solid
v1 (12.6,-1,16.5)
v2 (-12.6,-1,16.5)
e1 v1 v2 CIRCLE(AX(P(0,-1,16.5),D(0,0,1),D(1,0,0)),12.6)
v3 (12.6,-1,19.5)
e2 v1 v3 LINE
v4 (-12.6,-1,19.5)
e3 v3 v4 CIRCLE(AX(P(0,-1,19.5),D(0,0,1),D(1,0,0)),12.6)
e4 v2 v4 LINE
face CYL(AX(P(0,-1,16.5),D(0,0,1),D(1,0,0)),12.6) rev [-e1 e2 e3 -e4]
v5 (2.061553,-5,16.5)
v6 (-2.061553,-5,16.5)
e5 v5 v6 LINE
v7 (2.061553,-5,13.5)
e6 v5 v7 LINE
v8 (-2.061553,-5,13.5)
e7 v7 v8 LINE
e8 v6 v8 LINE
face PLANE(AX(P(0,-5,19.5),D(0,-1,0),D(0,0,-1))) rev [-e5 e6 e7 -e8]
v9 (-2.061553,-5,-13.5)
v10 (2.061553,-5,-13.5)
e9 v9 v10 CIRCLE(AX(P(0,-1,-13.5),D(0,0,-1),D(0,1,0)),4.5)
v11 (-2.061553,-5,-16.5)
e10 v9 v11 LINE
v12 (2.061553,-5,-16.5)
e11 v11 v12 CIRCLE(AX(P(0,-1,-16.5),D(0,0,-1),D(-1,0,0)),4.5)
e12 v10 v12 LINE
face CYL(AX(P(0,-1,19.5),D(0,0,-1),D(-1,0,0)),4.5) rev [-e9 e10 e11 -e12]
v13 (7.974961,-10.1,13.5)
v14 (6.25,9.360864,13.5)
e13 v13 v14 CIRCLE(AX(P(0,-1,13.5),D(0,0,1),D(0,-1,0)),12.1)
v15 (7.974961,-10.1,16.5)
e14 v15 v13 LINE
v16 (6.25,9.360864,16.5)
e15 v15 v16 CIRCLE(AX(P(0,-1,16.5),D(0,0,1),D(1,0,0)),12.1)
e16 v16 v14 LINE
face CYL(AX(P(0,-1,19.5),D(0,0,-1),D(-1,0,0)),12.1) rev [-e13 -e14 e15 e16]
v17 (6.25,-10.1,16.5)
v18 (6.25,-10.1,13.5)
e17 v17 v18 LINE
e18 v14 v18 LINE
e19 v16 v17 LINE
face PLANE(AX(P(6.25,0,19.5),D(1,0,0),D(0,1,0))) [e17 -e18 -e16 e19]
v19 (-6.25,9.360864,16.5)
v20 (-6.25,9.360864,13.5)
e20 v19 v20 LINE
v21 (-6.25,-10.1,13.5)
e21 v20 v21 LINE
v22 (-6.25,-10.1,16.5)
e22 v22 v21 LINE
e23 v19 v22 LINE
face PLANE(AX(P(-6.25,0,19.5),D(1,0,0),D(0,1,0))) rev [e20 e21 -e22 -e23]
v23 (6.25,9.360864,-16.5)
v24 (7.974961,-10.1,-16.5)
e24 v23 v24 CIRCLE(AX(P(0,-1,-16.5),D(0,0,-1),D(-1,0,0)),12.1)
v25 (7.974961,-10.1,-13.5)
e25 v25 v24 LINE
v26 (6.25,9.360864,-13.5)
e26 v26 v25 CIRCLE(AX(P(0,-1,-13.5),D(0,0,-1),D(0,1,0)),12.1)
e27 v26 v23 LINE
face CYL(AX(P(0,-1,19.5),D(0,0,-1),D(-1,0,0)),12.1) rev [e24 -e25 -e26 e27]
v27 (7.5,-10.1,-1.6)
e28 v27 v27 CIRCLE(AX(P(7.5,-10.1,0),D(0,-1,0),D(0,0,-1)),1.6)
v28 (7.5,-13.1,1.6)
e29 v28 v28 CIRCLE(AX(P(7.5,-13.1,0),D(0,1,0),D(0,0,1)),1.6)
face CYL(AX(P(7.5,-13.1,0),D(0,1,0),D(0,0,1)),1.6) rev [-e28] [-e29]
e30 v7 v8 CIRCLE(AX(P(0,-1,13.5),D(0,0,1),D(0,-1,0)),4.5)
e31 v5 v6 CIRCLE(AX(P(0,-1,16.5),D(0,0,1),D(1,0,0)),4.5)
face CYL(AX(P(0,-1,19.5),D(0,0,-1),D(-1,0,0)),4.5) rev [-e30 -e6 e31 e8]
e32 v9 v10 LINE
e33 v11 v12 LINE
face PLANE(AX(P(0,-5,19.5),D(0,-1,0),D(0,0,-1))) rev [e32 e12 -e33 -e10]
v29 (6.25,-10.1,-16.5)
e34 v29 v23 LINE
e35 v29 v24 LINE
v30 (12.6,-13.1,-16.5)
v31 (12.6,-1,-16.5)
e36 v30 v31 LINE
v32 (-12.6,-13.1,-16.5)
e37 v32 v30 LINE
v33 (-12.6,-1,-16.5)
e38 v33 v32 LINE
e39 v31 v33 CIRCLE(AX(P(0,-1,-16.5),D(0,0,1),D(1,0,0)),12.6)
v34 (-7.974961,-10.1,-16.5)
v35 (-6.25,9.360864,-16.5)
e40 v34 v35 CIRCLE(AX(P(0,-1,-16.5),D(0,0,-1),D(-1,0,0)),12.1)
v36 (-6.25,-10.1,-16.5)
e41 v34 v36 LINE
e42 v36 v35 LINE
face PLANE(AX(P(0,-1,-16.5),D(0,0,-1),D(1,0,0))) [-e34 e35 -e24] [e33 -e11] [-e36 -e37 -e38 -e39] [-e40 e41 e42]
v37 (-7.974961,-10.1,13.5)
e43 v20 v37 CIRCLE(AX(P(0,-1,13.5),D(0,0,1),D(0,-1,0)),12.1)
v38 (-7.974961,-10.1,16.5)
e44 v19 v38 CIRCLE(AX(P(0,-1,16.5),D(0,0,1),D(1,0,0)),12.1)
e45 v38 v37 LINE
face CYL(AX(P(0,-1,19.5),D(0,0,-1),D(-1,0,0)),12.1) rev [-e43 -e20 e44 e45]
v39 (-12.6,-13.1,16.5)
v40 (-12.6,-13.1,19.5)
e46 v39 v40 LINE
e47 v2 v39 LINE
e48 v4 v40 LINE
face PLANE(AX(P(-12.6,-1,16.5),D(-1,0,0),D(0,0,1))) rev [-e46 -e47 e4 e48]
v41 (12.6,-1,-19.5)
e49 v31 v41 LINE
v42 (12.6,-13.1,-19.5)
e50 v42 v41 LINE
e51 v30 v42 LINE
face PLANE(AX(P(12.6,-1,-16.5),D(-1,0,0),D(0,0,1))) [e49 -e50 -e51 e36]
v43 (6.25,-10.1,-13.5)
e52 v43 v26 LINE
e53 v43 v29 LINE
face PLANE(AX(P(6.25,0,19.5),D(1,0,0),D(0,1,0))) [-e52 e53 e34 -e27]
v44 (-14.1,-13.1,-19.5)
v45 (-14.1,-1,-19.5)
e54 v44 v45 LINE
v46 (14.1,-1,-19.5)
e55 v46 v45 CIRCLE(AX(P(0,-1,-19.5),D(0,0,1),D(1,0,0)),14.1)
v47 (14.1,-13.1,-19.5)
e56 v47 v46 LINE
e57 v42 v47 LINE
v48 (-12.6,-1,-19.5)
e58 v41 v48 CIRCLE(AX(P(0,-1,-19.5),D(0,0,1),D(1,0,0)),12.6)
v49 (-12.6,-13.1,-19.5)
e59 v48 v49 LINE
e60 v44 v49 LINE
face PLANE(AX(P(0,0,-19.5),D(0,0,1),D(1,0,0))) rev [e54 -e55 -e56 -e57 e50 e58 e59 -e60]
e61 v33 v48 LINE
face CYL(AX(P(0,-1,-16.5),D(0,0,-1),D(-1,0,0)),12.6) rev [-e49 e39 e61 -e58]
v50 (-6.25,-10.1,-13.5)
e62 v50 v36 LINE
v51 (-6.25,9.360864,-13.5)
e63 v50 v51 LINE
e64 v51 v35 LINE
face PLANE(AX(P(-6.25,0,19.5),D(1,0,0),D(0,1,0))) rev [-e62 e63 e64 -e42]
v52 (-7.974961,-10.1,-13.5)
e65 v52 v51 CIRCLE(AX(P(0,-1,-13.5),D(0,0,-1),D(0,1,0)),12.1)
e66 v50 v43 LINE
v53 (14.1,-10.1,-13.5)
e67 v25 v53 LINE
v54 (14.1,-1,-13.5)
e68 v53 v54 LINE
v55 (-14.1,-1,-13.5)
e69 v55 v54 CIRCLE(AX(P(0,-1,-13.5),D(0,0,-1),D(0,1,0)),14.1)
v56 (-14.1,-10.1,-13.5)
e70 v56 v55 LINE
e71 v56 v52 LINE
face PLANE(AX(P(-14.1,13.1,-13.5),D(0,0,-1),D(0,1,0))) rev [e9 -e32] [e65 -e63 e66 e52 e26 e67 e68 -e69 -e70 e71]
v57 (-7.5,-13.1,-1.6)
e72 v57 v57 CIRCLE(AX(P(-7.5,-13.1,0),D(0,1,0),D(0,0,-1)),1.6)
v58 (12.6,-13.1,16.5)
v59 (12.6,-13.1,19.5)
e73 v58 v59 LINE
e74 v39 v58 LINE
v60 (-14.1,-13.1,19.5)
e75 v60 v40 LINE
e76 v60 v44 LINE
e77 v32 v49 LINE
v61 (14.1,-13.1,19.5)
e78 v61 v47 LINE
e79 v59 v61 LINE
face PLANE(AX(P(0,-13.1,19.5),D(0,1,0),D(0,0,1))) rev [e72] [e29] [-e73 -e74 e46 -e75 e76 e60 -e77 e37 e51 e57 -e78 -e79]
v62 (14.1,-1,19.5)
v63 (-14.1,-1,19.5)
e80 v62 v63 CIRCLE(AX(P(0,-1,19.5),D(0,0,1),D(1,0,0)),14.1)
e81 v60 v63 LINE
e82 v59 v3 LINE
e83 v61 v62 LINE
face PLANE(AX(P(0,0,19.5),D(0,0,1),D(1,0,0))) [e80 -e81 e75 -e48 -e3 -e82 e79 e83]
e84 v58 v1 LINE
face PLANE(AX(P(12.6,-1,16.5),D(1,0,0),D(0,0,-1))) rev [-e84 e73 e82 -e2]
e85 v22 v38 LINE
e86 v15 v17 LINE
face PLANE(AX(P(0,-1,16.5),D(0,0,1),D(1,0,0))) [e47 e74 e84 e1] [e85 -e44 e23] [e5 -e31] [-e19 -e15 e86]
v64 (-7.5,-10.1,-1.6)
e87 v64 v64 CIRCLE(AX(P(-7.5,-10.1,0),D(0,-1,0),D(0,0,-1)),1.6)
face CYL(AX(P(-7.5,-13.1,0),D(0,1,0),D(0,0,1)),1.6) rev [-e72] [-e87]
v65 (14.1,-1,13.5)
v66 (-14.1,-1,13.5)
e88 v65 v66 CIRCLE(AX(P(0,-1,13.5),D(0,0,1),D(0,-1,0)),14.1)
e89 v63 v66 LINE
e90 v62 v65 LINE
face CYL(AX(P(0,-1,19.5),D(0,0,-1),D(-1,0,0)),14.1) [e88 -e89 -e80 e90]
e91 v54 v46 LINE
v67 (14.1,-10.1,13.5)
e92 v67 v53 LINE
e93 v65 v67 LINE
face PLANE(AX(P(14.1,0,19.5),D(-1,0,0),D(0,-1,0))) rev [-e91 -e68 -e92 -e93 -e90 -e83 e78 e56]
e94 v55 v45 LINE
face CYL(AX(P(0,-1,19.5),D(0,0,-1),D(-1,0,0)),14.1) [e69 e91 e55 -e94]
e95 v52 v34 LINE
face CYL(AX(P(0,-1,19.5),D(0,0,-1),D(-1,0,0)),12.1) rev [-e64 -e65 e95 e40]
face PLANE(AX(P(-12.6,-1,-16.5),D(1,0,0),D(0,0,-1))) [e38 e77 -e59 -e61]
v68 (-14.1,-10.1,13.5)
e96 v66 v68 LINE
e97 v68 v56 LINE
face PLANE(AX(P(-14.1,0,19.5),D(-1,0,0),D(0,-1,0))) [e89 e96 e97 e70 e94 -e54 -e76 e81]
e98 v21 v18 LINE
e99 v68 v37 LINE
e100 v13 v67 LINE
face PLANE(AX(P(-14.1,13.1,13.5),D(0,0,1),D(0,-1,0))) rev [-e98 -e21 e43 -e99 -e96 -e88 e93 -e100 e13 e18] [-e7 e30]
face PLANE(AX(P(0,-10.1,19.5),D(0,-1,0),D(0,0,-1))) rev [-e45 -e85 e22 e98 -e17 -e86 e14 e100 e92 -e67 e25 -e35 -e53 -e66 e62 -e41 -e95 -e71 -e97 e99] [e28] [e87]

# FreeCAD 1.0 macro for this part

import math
import FreeCAD as App
import Part
import Sketcher


def add_polygon(sketch, points):
    """Adds a closed chain of lines whose ends are joined by coincident constraints."""
    first, n = sketch.GeometryCount, len(points)
    for a, b in zip(points, points[1:] + points[:1]):
        sketch.addGeometry(Part.LineSegment(App.Vector(*a, 0), App.Vector(*b, 0)), False)
    for i in range(n):
        sketch.addConstraint(Sketcher.Constraint("Coincident", first + i, 2, first + (i + 1) % n, 1))

doc = App.newDocument("Part")
body = doc.addObject("PartDesign::Body", "Body")

# Sketch on XY plane
sketch1 = body.newObject("Sketcher::SketchObject", "Sketch")
sketch1.AttachmentSupport = (doc.getObject("XY_Plane"), [""])
sketch1.MapMode = "FlatFace"
sketch1.addGeometry([
    Part.LineSegment(App.Vector(-14.1, -13.1, 0), App.Vector(14.1, -13.1, 0)),  # 0
    Part.LineSegment(App.Vector(14.1, -13.1, 0), App.Vector(14.1, -1, 0)),  # 1
    Part.ArcOfCircle(Part.Circle(App.Vector(0, -1, 0), App.Vector(0, 0, 1), 14.1), math.radians(0), math.radians(180)),  # 2
    Part.LineSegment(App.Vector(-14.1, -1, 0), App.Vector(-14.1, -13.1, 0)),  # 3
    Part.ArcOfCircle(Part.Circle(App.Vector(0, -1, 0), App.Vector(0, 0, 1), 12.1), math.radians(121), math.radians(229)),  # 4
    Part.LineSegment(App.Vector(-6.2, 9.4, 0), App.Vector(-6.2, -10.1, 0)),  # 5
    Part.LineSegment(App.Vector(-6.2, -10.1, 0), App.Vector(-8, -10.1, 0)),  # 6
    Part.ArcOfCircle(Part.Circle(App.Vector(0, -1, 0), App.Vector(0, 0, 1), 4.5), math.radians(-63), math.radians(243)),  # 7
    Part.LineSegment(App.Vector(2.1, -5, 0), App.Vector(-2.1, -5, 0)),  # 8
    Part.LineSegment(App.Vector(6.2, -10.1, 0), App.Vector(6.2, 9.4, 0)),  # 9
    Part.ArcOfCircle(Part.Circle(App.Vector(0, -1, 0), App.Vector(0, 0, 1), 12.1), math.radians(-49), math.radians(59)),  # 10
    Part.LineSegment(App.Vector(8, -10.1, 0), App.Vector(6.2, -10.1, 0)),  # 11
], False)
sketch1.addConstraint([
    Sketcher.Constraint("Coincident", 0, 2, 1, 1),
    Sketcher.Constraint("Tangent", 1, 2, 2, 1),
    Sketcher.Constraint("Tangent", 2, 2, 3, 1),
    Sketcher.Constraint("Coincident", 3, 2, 0, 1),
    Sketcher.Constraint("Coincident", 4, 1, 5, 1),
    Sketcher.Constraint("Coincident", 5, 2, 6, 1),
    Sketcher.Constraint("Coincident", 6, 2, 4, 2),
    Sketcher.Constraint("Coincident", 7, 1, 8, 1),
    Sketcher.Constraint("Coincident", 8, 2, 7, 2),
    Sketcher.Constraint("Coincident", 9, 2, 10, 2),
    Sketcher.Constraint("Coincident", 10, 1, 11, 1),
    Sketcher.Constraint("Coincident", 11, 2, 9, 1),
    Sketcher.Constraint("Horizontal", 0),
    Sketcher.Constraint("Vertical", 1),
    Sketcher.Constraint("Vertical", 3),
    Sketcher.Constraint("Vertical", 5),
    Sketcher.Constraint("Horizontal", 6),
    Sketcher.Constraint("Horizontal", 8),
    Sketcher.Constraint("Vertical", 9),
    Sketcher.Constraint("Horizontal", 11),
    Sketcher.Constraint("Coincident", 4, 3, 2, 3),
    Sketcher.Constraint("Coincident", 7, 3, 2, 3),
    Sketcher.Constraint("Coincident", 10, 3, 2, 3),
    Sketcher.Constraint("Equal", 4, 10),
    Sketcher.Constraint("Symmetric", 4, 1, 9, 2, -2),
    Sketcher.Constraint("Horizontal", 6, 2, 10, 1),
    Sketcher.Constraint("Radius", 2, 14.1),
    Sketcher.Constraint("Radius", 4, 12.1),
    Sketcher.Constraint("Radius", 7, 4.5),
    Sketcher.Constraint("DistanceY", 1, 1, 1, 2, 12.1),
    Sketcher.Constraint("DistanceY", 2, 3, -1, 1, 1.0),
    Sketcher.Constraint("DistanceY", 7, 1, -1, 1, 5.0),
    Sketcher.Constraint("DistanceY", 3, 2, 5, 2, 3.0),
    Sketcher.Constraint("DistanceX", 4, 1, 9, 2, 12.5),
])
pad1 = body.newObject("PartDesign::Pad", "Pad")
pad1.Profile = sketch1
pad1.Length = 39
pad1.Midplane = True

# Sketch on YZ plane
sketch2 = body.newObject("Sketcher::SketchObject", "Sketch001")
sketch2.AttachmentSupport = (doc.getObject("YZ_Plane"), [""])
sketch2.MapMode = "FlatFace"
add_polygon(sketch2, [(13, 14), (-10, 14), (-10, -14), (13, -14)])  # lines 0-3
sketch2.addConstraint([
    Sketcher.Constraint("Horizontal", 0),
    Sketcher.Constraint("Vertical", 1),
    Sketcher.Constraint("Horizontal", 2),
    Sketcher.Constraint("Vertical", 3),
    Sketcher.Constraint("DistanceY", 1, 2, 1, 1, 27.0),
    Sketcher.Constraint("DistanceX", 0, 2, 0, 1, 23.2),
    Sketcher.Constraint("DistanceX", 0, 2, -1, 1, 10.1),
    Sketcher.Constraint("DistanceY", -1, 1, 0, 2, 13.5),
])
pocket1 = body.newObject("PartDesign::Pocket", "Pocket")
pocket1.Profile = sketch2
pocket1.Type = "ThroughAll"
pocket1.Midplane = True

# Sketch on XY plane
sketch3 = body.newObject("Sketcher::SketchObject", "Sketch002")
sketch3.AttachmentSupport = (doc.getObject("XY_Plane"), [""])
sketch3.MapMode = "FlatFace"
sketch3.AttachmentOffset = App.Placement(App.Vector(0, 0, 19.5), App.Rotation())
sketch3.addGeometry([
    Part.LineSegment(App.Vector(-13, -1, 0), App.Vector(-13, -13, 0)),
    Part.LineSegment(App.Vector(-13, -13, 0), App.Vector(13, -13, 0)),
    Part.LineSegment(App.Vector(13, -13, 0), App.Vector(13, -1, 0)),
    Part.ArcOfCircle(Part.Circle(App.Vector(0, -1, 0), App.Vector(0, 0, 1), 13), math.radians(0), math.radians(180)),
], False)
sketch3.addConstraint([
    Sketcher.Constraint("Coincident", 0, 2, 1, 1),
    Sketcher.Constraint("Coincident", 1, 2, 2, 1),
    Sketcher.Constraint("Tangent", 2, 2, 3, 1),
    Sketcher.Constraint("Tangent", 3, 2, 0, 1),
    Sketcher.Constraint("Vertical", 0),
    Sketcher.Constraint("Horizontal", 1),
    Sketcher.Constraint("Vertical", 2),
    Sketcher.Constraint("PointOnObject", 3, 3, -2),
    Sketcher.Constraint("Radius", 3, 12.6),
    Sketcher.Constraint("DistanceY", 0, 2, 0, 1, 12.1),
    Sketcher.Constraint("DistanceY", 3, 3, -1, 1, 1.0),
])
pocket2 = body.newObject("PartDesign::Pocket", "Pocket001")
pocket2.Profile = sketch3
pocket2.Length = 3

# Sketch on XZ plane
sketch4 = body.newObject("Sketcher::SketchObject", "Sketch003")
sketch4.AttachmentSupport = (doc.getObject("XZ_Plane"), [""])
sketch4.MapMode = "FlatFace"
sketch4.addGeometry([
    Part.Circle(App.Vector(7.5, 0, 0), App.Vector(0, 0, 1), 1.6),
    Part.Circle(App.Vector(-7.5, 0, 0), App.Vector(0, 0, 1), 1.6),
], False)
sketch4.addConstraint([
    Sketcher.Constraint("Equal", 0, 1),
    Sketcher.Constraint("Symmetric", 0, 3, 1, 3, -1, 1),
    Sketcher.Constraint("PointOnObject", 0, 3, -1),
    Sketcher.Constraint("Diameter", 0, 3.2),
    Sketcher.Constraint("DistanceX", 1, 3, 0, 3, 15.0),
])
pocket3 = body.newObject("PartDesign::Pocket", "Pocket002")
pocket3.Profile = sketch4
pocket3.Type = "ThroughAll"
pocket3.Midplane = True
doc.recompute()

mirrored = body.newObject("PartDesign::Mirrored", "Mirrored")
mirrored.Originals = [pocket2]
mirrored.MirrorPlane = (doc.getObject("XY_Plane"), [""])
body.Tip = mirrored

doc.recompute()
